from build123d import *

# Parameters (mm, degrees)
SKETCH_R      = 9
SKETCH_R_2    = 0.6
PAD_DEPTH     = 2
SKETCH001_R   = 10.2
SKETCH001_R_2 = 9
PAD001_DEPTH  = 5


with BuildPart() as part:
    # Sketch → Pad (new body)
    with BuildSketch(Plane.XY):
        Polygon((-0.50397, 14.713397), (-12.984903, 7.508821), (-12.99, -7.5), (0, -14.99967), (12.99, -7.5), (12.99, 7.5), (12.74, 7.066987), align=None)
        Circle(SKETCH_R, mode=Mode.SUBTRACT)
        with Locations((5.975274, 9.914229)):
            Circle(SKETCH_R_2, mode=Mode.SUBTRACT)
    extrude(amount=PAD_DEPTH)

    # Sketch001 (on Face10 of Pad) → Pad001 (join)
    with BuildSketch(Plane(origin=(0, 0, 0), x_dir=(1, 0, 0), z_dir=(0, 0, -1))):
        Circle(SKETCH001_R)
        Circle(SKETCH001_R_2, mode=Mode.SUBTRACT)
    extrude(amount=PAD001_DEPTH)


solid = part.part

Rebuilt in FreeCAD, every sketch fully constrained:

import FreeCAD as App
import Part
import Sketcher

V = App.Vector
Q = App.Units.Quantity

doc = App.newDocument("Part")
body = doc.addObject("PartDesign::Body", "Body")

sketch1 = body.newObject("Sketcher::SketchObject", "Sketch")
sketch1.AttachmentSupport = (doc.getObject("XY_Plane"), [""])
sketch1.MapMode = "FlatFace"
sketch1.addGeometry([
    Part.LineSegment(V(-0.5, 14.7, 0), V(-13, 7.5, 0)),
    Part.LineSegment(V(-13, 7.5, 0), V(-13, -7.5, 0)),
    Part.LineSegment(V(-13, -7.5, 0), V(0, -15, 0)),
    Part.LineSegment(V(0, -15, 0), V(13, -7.5, 0)),
    Part.LineSegment(V(13, -7.5, 0), V(13, 7.5, 0)),
    Part.LineSegment(V(13, 7.5, 0), V(12.7, 7.1, 0)),
    Part.LineSegment(V(12.7, 7.1, 0), V(-0.5, 14.7, 0)),
    Part.Circle(V(0, 0, 0), V(0, 0, 1), 9),
    Part.Circle(V(6, 9.9, 0), V(0, 0, 1), 0.6),
], False)
sketch1.addConstraint([
    Sketcher.Constraint("Coincident", 0, 2, 1, 1),
    Sketcher.Constraint("Coincident", 1, 2, 2, 1),
    Sketcher.Constraint("Coincident", 2, 2, 3, 1),
    Sketcher.Constraint("Coincident", 3, 2, 4, 1),
    Sketcher.Constraint("Coincident", 4, 2, 5, 1),
    Sketcher.Constraint("Coincident", 5, 2, 6, 1),
    Sketcher.Constraint("Coincident", 6, 2, 0, 1),
    Sketcher.Constraint("Vertical", 4),
    Sketcher.Constraint("Coincident", 7, 3, -1, 1),
    Sketcher.Constraint("Symmetric", 1, 2, 4, 2, -1, 1),
    Sketcher.Constraint("PointOnObject", 2, 2, -2),
    Sketcher.Constraint("Perpendicular", 5, 6),
    Sketcher.Constraint("Horizontal", 1, 2, 3, 2),
    Sketcher.Constraint("Diameter", 7, Q("18 mm")),
    Sketcher.Constraint("Diameter", 8, Q("1.2 mm")),
    Sketcher.Constraint("DistanceY", 4, 1, 4, 2, Q("15 mm")),
    Sketcher.Constraint("Angle", 5, Q("-119.999983 deg")),
    Sketcher.Constraint("Distance", 5, Q("0.5 mm")),
    Sketcher.Constraint("DistanceX", 1, 2, -1, 1, Q("12.99 mm")),
    Sketcher.Constraint("DistanceY", 2, 2, 8, 3, Q("24.913899 mm")),
    Sketcher.Constraint("Distance", 1, Q("15.008822 mm")),
    Sketcher.Constraint("Distance", 6, Q("15.292819 mm")),
    Sketcher.Constraint("DistanceY", -1, 1, 8, 3, Q("9.914229 mm")),
    Sketcher.Constraint("Distance", 0, Q("14.411093 mm")),
    Sketcher.Constraint("DistanceX", -1, 1, 8, 3, Q("5.975274 mm")),
])
pad1 = body.newObject("PartDesign::Pad", "Pad")
pad1.Profile = sketch1
pad1.Length = 2

sketch2 = body.newObject("Sketcher::SketchObject", "Sketch001")
sketch2.AttachmentSupport = (doc.getObject("XY_Plane"), [""])
sketch2.MapMode = "FlatFace"
sketch2.addGeometry([
    Part.Circle(V(0, 0, 0), V(0, 0, 1), 10),
    Part.Circle(V(0, 0, 0), V(0, 0, 1), 9),
], False)
sketch2.addConstraint([
    Sketcher.Constraint("Coincident", 0, 3, -1, 1),
    Sketcher.Constraint("Coincident", 1, 3, -1, 1),
    Sketcher.Constraint("Diameter", 1, Q("18 mm")),
    Sketcher.Constraint("Diameter", 0, Q("20.4 mm")),
])
pad2 = body.newObject("PartDesign::Pad", "Pad001")
pad2.Profile = sketch2
pad2.Length = 5
pad2.Reversed = True

doc.recompute()
